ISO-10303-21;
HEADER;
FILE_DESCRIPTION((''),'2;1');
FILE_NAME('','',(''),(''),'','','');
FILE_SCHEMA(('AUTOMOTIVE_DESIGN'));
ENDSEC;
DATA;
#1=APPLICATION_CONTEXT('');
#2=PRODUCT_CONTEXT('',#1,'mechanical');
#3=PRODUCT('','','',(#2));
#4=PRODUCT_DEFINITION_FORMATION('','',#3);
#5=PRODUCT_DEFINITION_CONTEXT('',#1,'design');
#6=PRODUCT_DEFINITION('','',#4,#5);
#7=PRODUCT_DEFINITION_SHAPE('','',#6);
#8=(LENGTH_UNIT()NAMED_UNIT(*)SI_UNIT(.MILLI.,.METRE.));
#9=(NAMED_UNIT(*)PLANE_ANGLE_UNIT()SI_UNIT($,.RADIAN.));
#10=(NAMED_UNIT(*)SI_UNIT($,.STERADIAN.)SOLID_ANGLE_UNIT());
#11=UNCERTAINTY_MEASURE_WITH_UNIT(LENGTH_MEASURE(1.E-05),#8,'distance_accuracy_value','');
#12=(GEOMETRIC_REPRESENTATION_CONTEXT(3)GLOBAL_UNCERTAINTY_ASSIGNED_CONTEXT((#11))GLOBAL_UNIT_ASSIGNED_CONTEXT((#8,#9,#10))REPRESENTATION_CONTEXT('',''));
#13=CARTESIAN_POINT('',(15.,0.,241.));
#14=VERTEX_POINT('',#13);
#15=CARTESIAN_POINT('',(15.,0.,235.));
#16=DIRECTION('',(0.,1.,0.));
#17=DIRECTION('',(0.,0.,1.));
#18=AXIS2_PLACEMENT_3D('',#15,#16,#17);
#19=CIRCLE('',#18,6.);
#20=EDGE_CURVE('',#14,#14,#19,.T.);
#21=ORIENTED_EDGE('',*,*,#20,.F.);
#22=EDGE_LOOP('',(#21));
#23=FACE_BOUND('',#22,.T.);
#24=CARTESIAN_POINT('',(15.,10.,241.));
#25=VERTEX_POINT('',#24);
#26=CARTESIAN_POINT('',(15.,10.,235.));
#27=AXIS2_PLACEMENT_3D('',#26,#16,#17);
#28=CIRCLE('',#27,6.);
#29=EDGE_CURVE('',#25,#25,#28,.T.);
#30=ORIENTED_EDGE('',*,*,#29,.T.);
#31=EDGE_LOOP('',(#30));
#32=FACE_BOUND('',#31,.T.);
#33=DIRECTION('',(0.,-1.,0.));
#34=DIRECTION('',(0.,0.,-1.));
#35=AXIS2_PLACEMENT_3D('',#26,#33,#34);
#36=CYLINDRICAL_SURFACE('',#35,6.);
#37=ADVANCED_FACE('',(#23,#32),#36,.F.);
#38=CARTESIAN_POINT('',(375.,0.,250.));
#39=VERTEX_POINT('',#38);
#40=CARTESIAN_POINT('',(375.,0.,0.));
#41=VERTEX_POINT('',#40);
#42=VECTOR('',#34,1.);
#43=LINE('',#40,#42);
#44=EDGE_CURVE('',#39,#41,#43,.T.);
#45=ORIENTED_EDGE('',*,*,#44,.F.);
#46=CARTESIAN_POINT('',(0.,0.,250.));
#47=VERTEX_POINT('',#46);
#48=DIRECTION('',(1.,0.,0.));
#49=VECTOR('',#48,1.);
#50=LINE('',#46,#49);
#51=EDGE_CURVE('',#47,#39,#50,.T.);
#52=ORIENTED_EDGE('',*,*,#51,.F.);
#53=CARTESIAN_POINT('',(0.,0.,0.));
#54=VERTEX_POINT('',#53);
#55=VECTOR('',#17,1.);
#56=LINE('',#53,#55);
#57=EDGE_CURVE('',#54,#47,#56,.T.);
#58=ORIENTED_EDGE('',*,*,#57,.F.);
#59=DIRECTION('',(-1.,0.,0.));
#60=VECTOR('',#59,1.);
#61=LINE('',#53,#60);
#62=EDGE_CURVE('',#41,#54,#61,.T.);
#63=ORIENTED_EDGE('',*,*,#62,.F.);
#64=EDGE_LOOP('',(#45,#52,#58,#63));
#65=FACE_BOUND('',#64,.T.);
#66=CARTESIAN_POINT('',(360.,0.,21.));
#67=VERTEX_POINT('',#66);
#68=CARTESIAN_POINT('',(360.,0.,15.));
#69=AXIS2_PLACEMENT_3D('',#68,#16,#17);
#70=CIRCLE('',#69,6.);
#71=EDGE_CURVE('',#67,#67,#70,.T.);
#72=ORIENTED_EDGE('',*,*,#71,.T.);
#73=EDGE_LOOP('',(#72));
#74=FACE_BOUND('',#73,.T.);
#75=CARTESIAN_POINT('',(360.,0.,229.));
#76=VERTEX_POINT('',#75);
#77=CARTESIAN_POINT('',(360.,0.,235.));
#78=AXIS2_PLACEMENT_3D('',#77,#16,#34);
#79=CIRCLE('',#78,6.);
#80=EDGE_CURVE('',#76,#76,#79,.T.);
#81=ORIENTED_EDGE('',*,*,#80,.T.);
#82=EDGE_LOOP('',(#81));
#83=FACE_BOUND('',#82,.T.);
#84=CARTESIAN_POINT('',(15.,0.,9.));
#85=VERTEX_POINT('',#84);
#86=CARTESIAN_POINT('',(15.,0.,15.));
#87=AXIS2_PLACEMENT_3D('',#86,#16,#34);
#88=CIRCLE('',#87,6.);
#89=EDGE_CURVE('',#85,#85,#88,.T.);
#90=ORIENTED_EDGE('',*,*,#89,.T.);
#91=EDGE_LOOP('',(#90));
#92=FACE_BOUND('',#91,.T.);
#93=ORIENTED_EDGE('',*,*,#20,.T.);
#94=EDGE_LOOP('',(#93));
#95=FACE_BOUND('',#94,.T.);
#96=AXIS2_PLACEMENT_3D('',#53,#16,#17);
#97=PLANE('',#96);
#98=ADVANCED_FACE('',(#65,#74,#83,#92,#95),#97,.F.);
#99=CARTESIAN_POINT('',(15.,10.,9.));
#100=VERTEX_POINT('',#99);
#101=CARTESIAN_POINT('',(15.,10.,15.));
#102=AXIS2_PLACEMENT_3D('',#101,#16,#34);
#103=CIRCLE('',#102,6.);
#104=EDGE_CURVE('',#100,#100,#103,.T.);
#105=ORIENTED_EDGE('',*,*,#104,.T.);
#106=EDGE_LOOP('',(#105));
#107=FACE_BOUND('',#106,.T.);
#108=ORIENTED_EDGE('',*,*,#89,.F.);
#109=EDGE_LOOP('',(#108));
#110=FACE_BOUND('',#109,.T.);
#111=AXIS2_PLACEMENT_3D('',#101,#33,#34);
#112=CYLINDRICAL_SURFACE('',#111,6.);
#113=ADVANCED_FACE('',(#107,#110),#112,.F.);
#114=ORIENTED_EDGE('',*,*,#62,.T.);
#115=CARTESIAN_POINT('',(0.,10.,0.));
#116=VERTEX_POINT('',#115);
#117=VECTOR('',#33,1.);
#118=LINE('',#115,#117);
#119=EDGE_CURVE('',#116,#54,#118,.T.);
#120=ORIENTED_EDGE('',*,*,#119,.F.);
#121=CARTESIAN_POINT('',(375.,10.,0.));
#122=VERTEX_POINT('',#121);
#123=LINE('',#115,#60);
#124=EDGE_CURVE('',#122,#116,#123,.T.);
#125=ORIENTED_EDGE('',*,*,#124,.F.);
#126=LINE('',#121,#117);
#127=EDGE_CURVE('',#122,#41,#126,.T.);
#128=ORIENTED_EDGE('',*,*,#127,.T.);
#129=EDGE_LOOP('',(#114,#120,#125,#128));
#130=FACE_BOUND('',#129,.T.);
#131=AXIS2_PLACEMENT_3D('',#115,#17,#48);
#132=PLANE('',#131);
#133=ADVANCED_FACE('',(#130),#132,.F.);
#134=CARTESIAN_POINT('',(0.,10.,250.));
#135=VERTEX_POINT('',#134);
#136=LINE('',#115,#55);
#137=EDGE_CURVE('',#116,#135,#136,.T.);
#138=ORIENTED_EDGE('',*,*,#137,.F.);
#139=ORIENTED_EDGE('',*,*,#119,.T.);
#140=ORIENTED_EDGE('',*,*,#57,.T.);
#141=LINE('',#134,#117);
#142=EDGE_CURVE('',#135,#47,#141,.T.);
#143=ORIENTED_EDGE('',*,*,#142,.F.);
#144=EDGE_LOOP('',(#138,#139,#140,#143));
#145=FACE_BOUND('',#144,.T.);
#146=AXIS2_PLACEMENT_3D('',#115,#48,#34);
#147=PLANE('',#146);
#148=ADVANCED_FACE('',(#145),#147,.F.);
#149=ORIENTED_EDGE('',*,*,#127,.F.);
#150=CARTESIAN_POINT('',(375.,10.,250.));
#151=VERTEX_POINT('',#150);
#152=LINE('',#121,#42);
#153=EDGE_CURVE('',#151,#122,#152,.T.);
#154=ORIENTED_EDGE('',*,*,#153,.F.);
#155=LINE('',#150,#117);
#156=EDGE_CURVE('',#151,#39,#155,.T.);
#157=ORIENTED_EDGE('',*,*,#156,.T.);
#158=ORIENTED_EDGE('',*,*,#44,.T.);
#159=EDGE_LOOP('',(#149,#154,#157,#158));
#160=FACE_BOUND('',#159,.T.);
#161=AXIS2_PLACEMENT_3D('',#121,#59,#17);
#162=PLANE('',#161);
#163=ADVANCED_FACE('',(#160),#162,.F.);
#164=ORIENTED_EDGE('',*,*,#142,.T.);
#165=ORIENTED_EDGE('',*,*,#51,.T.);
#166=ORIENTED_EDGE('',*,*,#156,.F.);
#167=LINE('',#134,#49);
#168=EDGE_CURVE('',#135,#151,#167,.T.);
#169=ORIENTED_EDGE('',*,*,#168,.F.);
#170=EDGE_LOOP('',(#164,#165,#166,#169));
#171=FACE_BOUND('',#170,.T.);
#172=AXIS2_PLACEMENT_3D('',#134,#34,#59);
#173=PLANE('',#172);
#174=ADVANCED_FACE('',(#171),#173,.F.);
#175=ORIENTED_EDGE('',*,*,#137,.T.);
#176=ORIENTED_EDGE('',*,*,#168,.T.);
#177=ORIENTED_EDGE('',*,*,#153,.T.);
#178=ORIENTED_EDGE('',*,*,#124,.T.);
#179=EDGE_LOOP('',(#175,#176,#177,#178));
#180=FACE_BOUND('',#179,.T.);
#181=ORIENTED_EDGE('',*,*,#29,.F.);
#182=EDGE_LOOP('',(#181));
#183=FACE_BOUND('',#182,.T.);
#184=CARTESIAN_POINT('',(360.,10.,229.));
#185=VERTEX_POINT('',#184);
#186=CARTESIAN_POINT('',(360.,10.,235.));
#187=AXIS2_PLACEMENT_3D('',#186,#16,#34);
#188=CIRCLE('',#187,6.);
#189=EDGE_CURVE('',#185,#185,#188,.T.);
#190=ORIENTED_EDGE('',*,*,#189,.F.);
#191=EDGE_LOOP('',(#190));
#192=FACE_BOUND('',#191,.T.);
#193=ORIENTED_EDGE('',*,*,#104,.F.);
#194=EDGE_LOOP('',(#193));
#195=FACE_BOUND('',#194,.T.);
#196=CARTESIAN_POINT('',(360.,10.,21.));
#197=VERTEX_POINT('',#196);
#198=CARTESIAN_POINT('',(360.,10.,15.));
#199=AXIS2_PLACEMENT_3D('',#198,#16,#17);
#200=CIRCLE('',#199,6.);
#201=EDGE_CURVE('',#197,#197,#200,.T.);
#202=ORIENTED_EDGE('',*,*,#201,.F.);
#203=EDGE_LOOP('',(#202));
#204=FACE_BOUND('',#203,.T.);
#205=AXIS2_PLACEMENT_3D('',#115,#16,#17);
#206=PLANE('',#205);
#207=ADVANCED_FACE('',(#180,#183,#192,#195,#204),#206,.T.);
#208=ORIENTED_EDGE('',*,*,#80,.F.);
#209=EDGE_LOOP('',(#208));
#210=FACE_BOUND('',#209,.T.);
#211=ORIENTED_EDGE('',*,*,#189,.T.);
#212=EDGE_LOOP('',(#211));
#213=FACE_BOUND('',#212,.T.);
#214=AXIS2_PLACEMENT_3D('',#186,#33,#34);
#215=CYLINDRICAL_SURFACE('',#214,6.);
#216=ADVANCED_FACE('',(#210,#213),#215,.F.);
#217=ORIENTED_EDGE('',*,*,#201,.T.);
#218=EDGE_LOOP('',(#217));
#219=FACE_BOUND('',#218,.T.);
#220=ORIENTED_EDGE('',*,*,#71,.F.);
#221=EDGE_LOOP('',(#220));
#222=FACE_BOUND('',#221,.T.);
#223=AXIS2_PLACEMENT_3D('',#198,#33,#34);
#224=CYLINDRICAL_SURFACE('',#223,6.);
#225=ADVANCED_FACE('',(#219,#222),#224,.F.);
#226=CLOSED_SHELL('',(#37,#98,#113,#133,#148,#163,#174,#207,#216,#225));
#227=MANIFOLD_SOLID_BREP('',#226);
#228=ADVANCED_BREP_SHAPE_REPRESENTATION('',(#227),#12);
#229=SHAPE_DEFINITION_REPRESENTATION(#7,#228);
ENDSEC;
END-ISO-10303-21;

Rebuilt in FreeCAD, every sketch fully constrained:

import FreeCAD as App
import Part
import Sketcher
from FreeCAD import Vector

doc = App.newDocument("Part")
body = doc.addObject("PartDesign::Body", "Body")

sketch1 = body.newObject("Sketcher::SketchObject", "Sketch")
sketch1.AttachmentSupport = (doc.getObject("XZ_Plane"), [""])
sketch1.MapMode = "FlatFace"
sketch1.addGeometry([
    Part.LineSegment(Vector(0, 0, 0), Vector(0, 250, 0)),
    Part.LineSegment(Vector(0, 250, 0), Vector(375, 250, 0)),
    Part.LineSegment(Vector(375, 250, 0), Vector(375, 0, 0)),
    Part.LineSegment(Vector(375, 0, 0), Vector(0, 0, 0)),
    Part.Circle(Vector(15, 235, 0), Vector(0, 0, 1), 6),
    Part.Circle(Vector(360, 235, 0), Vector(0, 0, 1), 6),
    Part.Circle(Vector(15, 15, 0), Vector(0, 0, 1), 6),
    Part.Circle(Vector(360, 15, 0), Vector(0, 0, 1), 6),
], False)
sketch1.addConstraint([
    Sketcher.Constraint("Coincident", 0, 2, 1, 1),
    Sketcher.Constraint("Coincident", 1, 2, 2, 1),
    Sketcher.Constraint("Coincident", 2, 2, 3, 1),
    Sketcher.Constraint("Coincident", 3, 2, 0, 1),
    Sketcher.Constraint("Vertical", 0),
    Sketcher.Constraint("Horizontal", 1),
    Sketcher.Constraint("Vertical", 2),
    Sketcher.Constraint("Horizontal", 3),
    Sketcher.Constraint("Coincident", 3, 2, -1, 1),
    Sketcher.Constraint("Equal", 4, 5),
    Sketcher.Constraint("Equal", 5, 6),
    Sketcher.Constraint("Equal", 6, 7),
    Sketcher.Constraint("Horizontal", 4, 3, 5, 3),
    Sketcher.Constraint("Horizontal", 6, 3, 7, 3),
    Sketcher.Constraint("Vertical", 4, 3, 6, 3),
    Sketcher.Constraint("Vertical", 5, 3, 7, 3),
    Sketcher.Constraint("Diameter", 4, 12.0),
    Sketcher.Constraint("DistanceX", 1, 1, 1, 2, 375.0),
    Sketcher.Constraint("DistanceY", 0, 1, 0, 2, 250.0),
    Sketcher.Constraint("DistanceX", -1, 1, 4, 3, 15.0),
    Sketcher.Constraint("DistanceY", -1, 1, 4, 3, 235.0),
    Sketcher.Constraint("DistanceX", -1, 1, 5, 3, 360.0),
    Sketcher.Constraint("DistanceY", -1, 1, 6, 3, 15.0),
])
pad1 = body.newObject("PartDesign::Pad", "Pad")
pad1.Profile = sketch1
pad1.Length = 10
pad1.Reversed = True

doc.recompute()
